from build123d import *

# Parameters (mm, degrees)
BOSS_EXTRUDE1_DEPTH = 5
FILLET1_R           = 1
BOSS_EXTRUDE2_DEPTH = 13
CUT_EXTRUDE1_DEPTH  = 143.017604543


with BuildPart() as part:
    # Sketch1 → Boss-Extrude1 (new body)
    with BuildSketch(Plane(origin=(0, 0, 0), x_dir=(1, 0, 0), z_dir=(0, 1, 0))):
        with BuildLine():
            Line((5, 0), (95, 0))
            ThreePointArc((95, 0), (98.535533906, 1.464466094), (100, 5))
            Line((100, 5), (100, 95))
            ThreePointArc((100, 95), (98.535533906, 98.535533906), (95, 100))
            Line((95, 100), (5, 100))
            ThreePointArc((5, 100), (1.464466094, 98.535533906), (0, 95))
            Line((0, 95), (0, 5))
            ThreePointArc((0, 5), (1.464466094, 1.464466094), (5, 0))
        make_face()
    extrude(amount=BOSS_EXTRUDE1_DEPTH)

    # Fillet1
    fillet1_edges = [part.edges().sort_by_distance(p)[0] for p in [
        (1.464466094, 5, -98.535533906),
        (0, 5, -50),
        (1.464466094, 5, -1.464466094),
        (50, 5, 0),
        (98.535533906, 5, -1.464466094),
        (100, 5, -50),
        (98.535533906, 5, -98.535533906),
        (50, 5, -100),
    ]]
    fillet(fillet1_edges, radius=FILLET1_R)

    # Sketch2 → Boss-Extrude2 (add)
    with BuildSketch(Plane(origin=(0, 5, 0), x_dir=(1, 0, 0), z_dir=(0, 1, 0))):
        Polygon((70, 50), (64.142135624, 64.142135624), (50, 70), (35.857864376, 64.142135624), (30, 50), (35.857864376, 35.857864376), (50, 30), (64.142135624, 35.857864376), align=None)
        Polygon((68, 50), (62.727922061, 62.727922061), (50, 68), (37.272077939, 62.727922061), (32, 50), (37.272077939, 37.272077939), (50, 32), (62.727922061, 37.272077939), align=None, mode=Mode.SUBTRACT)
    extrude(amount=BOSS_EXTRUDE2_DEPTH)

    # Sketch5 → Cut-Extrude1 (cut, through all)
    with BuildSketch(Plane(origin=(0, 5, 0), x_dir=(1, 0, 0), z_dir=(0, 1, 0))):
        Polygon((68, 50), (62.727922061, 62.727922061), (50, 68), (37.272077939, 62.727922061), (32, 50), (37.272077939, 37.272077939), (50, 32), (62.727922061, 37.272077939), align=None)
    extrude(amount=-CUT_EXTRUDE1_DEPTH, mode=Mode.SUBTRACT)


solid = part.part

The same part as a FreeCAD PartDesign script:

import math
import FreeCAD as App
import Part
import Sketcher

V = App.Vector
Q = App.Units.Quantity


def edges_at(feature, points):
    """Names of the edges that pass closest to the given points."""
    edges = feature.Shape.Edges
    near = lambda p: min(range(len(edges)), key=lambda i: edges[i].distToShape(Part.Vertex(*p))[0])
    return sorted({f"Edge{near(p) + 1}" for p in points})

doc = App.newDocument("Part")
body = doc.addObject("PartDesign::Body", "Body")

# Sketch on XZ plane
sketch1 = body.newObject("Sketcher::SketchObject", "Sketch")
sketch1.AttachmentSupport = (doc.getObject("XZ_Plane"), [""])
sketch1.MapMode = "FlatFace"
sketch1.addGeometry(Part.LineSegment(V(5, 0, 0), V(95, 0, 0)), False)
sketch1.addGeometry(Part.ArcOfCircle(Part.Circle(V(95, -5, 0), V(0, 0, 1), 5), math.radians(0), math.radians(90)), False)
sketch1.addGeometry(Part.LineSegment(V(100, -5, 0), V(100, -95, 0)), False)
sketch1.addGeometry(Part.ArcOfCircle(Part.Circle(V(95, -95, 0), V(0, 0, 1), 5), math.radians(-90), math.radians(0)), False)
sketch1.addGeometry(Part.LineSegment(V(95, -100, 0), V(5, -100, 0)), False)
sketch1.addGeometry(Part.ArcOfCircle(Part.Circle(V(5, -95, 0), V(0, 0, 1), 5), math.radians(180), math.radians(270)), False)
sketch1.addGeometry(Part.LineSegment(V(0, -95, 0), V(0, -5, 0)), False)
sketch1.addGeometry(Part.ArcOfCircle(Part.Circle(V(5, -5, 0), V(0, 0, 1), 5), math.radians(90), math.radians(180)), False)
sketch1.addConstraint(Sketcher.Constraint("Tangent", 0, 2, 1, 2))
sketch1.addConstraint(Sketcher.Constraint("Tangent", 1, 1, 2, 1))
sketch1.addConstraint(Sketcher.Constraint("Tangent", 2, 2, 3, 2))
sketch1.addConstraint(Sketcher.Constraint("Tangent", 3, 1, 4, 1))
sketch1.addConstraint(Sketcher.Constraint("Tangent", 4, 2, 5, 2))
sketch1.addConstraint(Sketcher.Constraint("Tangent", 5, 1, 6, 1))
sketch1.addConstraint(Sketcher.Constraint("Tangent", 6, 2, 7, 2))
sketch1.addConstraint(Sketcher.Constraint("Tangent", 7, 1, 0, 1))
sketch1.addConstraint(Sketcher.Constraint("Horizontal", 0))
sketch1.addConstraint(Sketcher.Constraint("Vertical", 2))
sketch1.addConstraint(Sketcher.Constraint("Horizontal", 4))
sketch1.addConstraint(Sketcher.Constraint("Vertical", 6))
sketch1.addConstraint(Sketcher.Constraint("Equal", 1, 3))
sketch1.addConstraint(Sketcher.Constraint("Equal", 3, 5))
sketch1.addConstraint(Sketcher.Constraint("Equal", 5, 7))
sketch1.addConstraint(Sketcher.Constraint("PointOnObject", 0, 2, -1))
sketch1.addConstraint(Sketcher.Constraint("PointOnObject", 5, 1, -2))
sketch1.addConstraint(Sketcher.Constraint("Equal", 4, 2))
sketch1.addConstraint(Sketcher.Constraint("Radius", 1, Q("5 mm")))
sketch1.addConstraint(Sketcher.Constraint("DistanceX", 0, 1, 0, 2, Q("90 mm")))
pad1 = body.newObject("PartDesign::Pad", "Pad")
pad1.Profile = sketch1
pad1.Length = 5
pad1.Reversed = True
doc.recompute()

fillet = body.newObject("PartDesign::Fillet", "Fillet")
fillet.Base = (pad1, edges_at(pad1, [
    (1.464, 5, -98.536),
    (0, 5, -50),
    (1.464, 5, -1.464),
    (50, 5, 0),
    (98.536, 5, -1.464),
    (100, 5, -50),
    (98.536, 5, -98.536),
    (50, 5, -100),
]))
fillet.Radius = 1

# Sketch on XZ plane
sketch2 = body.newObject("Sketcher::SketchObject", "Sketch001")
sketch2.AttachmentSupport = (doc.getObject("XZ_Plane"), [""])
sketch2.MapMode = "FlatFace"
sketch2.AttachmentOffset = App.Placement(V(0, 0, -5), App.Rotation())
sketch2.addGeometry(Part.LineSegment(V(70, -50, 0), V(64.142136, -64.142136, 0)), False)
sketch2.addGeometry(Part.LineSegment(V(64.142136, -64.142136, 0), V(50, -70, 0)), False)
sketch2.addGeometry(Part.LineSegment(V(50, -70, 0), V(35.857864, -64.142136, 0)), False)
sketch2.addGeometry(Part.LineSegment(V(35.857864, -64.142136, 0), V(30, -50, 0)), False)
sketch2.addGeometry(Part.LineSegment(V(30, -50, 0), V(35.857864, -35.857864, 0)), False)
sketch2.addGeometry(Part.LineSegment(V(35.857864, -35.857864, 0), V(50, -30, 0)), False)
sketch2.addGeometry(Part.LineSegment(V(50, -30, 0), V(64.142136, -35.857864, 0)), False)
sketch2.addGeometry(Part.LineSegment(V(64.142136, -35.857864, 0), V(70, -50, 0)), False)
sketch2.addGeometry(Part.LineSegment(V(62.727922, -62.727922, 0), V(68, -50, 0)), False)
sketch2.addGeometry(Part.LineSegment(V(68, -50, 0), V(62.727922, -37.272078, 0)), False)
sketch2.addGeometry(Part.LineSegment(V(62.727922, -37.272078, 0), V(50, -32, 0)), False)
sketch2.addGeometry(Part.LineSegment(V(50, -32, 0), V(37.272078, -37.272078, 0)), False)
sketch2.addGeometry(Part.LineSegment(V(37.272078, -37.272078, 0), V(32, -50, 0)), False)
sketch2.addGeometry(Part.LineSegment(V(32, -50, 0), V(37.272078, -62.727922, 0)), False)
sketch2.addGeometry(Part.LineSegment(V(37.272078, -62.727922, 0), V(50, -68, 0)), False)
sketch2.addGeometry(Part.LineSegment(V(50, -68, 0), V(62.727922, -62.727922, 0)), False)
sketch2.addConstraint(Sketcher.Constraint("Coincident", 0, 2, 1, 1))
sketch2.addConstraint(Sketcher.Constraint("Coincident", 1, 2, 2, 1))
sketch2.addConstraint(Sketcher.Constraint("Coincident", 2, 2, 3, 1))
sketch2.addConstraint(Sketcher.Constraint("Coincident", 3, 2, 4, 1))
sketch2.addConstraint(Sketcher.Constraint("Coincident", 4, 2, 5, 1))
sketch2.addConstraint(Sketcher.Constraint("Coincident", 5, 2, 6, 1))
sketch2.addConstraint(Sketcher.Constraint("Coincident", 6, 2, 7, 1))
sketch2.addConstraint(Sketcher.Constraint("Coincident", 7, 2, 0, 1))
sketch2.addConstraint(Sketcher.Constraint("Coincident", 8, 2, 9, 1))
sketch2.addConstraint(Sketcher.Constraint("Coincident", 9, 2, 10, 1))
sketch2.addConstraint(Sketcher.Constraint("Coincident", 10, 2, 11, 1))
sketch2.addConstraint(Sketcher.Constraint("Coincident", 11, 2, 12, 1))
sketch2.addConstraint(Sketcher.Constraint("Coincident", 12, 2, 13, 1))
sketch2.addConstraint(Sketcher.Constraint("Coincident", 13, 2, 14, 1))
sketch2.addConstraint(Sketcher.Constraint("Coincident", 14, 2, 15, 1))
sketch2.addConstraint(Sketcher.Constraint("Coincident", 15, 2, 8, 1))
sketch2.addConstraint(Sketcher.Constraint("Perpendicular", 0, 2))
sketch2.addConstraint(Sketcher.Constraint("Perpendicular", 1, 3))
sketch2.addConstraint(Sketcher.Constraint("Perpendicular", 2, 4))
sketch2.addConstraint(Sketcher.Constraint("Perpendicular", 3, 5))
sketch2.addConstraint(Sketcher.Constraint("Perpendicular", 4, 6))
sketch2.addConstraint(Sketcher.Constraint("Perpendicular", 5, 7))
sketch2.addConstraint(Sketcher.Constraint("Perpendicular", 6, 8))
sketch2.addConstraint(Sketcher.Constraint("Parallel", 7, 9))
sketch2.addConstraint(Sketcher.Constraint("Perpendicular", 8, 10))
sketch2.addConstraint(Sketcher.Constraint("Perpendicular", 9, 11))
sketch2.addConstraint(Sketcher.Constraint("Perpendicular", 10, 12))
sketch2.addConstraint(Sketcher.Constraint("Perpendicular", 11, 13))
sketch2.addConstraint(Sketcher.Constraint("Perpendicular", 12, 14))
sketch2.addConstraint(Sketcher.Constraint("Perpendicular", 13, 15))
sketch2.addConstraint(Sketcher.Constraint("Horizontal", 0, 2, 2, 2))
sketch2.addConstraint(Sketcher.Constraint("Horizontal", 4, 2, 6, 2))
sketch2.addConstraint(Sketcher.Constraint("Horizontal", 3, 2, 7, 2))
sketch2.addConstraint(Sketcher.Constraint("Horizontal", 7, 2, 8, 2))
sketch2.addConstraint(Sketcher.Constraint("Horizontal", 9, 2, 11, 2))
sketch2.addConstraint(Sketcher.Constraint("Horizontal", 8, 2, 12, 2))
sketch2.addConstraint(Sketcher.Constraint("Horizontal", 13, 2, 15, 2))
sketch2.addConstraint(Sketcher.Constraint("Vertical", 2, 2, 4, 2))
sketch2.addConstraint(Sketcher.Constraint("Vertical", 1, 2, 5, 2))
sketch2.addConstraint(Sketcher.Constraint("Vertical", 5, 2, 10, 2))
sketch2.addConstraint(Sketcher.Constraint("Vertical", 11, 2, 13, 2))
sketch2.addConstraint(Sketcher.Constraint("Equal", 0, 1))
sketch2.addConstraint(Sketcher.Constraint("Equal", 9, 10))
sketch2.addConstraint(Sketcher.Constraint("DistanceX", -1, 1, 1, 2, Q("50 mm")))
sketch2.addConstraint(Sketcher.Constraint("DistanceY", 1, 2, -1, 1, Q("70 mm")))
sketch2.addConstraint(Sketcher.Constraint("DistanceX", -1, 1, 3, 2, Q("30 mm")))
sketch2.addConstraint(Sketcher.Constraint("DistanceX", -1, 1, 8, 2, Q("68 mm")))
sketch2.addConstraint(Sketcher.Constraint("Angle", 0, Q("-112.5 deg")))
pad2 = body.newObject("PartDesign::Pad", "Pad001")
pad2.Profile = sketch2
pad2.Length = 13
pad2.Reversed = True

# Sketch on XZ plane
sketch3 = body.newObject("Sketcher::SketchObject", "Sketch002")
sketch3.AttachmentSupport = (doc.getObject("XZ_Plane"), [""])
sketch3.MapMode = "FlatFace"
sketch3.AttachmentOffset = App.Placement(V(0, 0, -5), App.Rotation())
sketch3.addGeometry(Part.LineSegment(V(68, -50, 0), V(62.727922, -62.727922, 0)), False)
sketch3.addGeometry(Part.LineSegment(V(62.727922, -62.727922, 0), V(50, -68, 0)), False)
sketch3.addGeometry(Part.LineSegment(V(50, -68, 0), V(37.272078, -62.727922, 0)), False)
sketch3.addGeometry(Part.LineSegment(V(37.272078, -62.727922, 0), V(32, -50, 0)), False)
sketch3.addGeometry(Part.LineSegment(V(32, -50, 0), V(37.272078, -37.272078, 0)), False)
sketch3.addGeometry(Part.LineSegment(V(37.272078, -37.272078, 0), V(50, -32, 0)), False)
sketch3.addGeometry(Part.LineSegment(V(50, -32, 0), V(62.727922, -37.272078, 0)), False)
sketch3.addGeometry(Part.LineSegment(V(62.727922, -37.272078, 0), V(68, -50, 0)), False)
sketch3.addConstraint(Sketcher.Constraint("Coincident", 0, 2, 1, 1))
sketch3.addConstraint(Sketcher.Constraint("Coincident", 1, 2, 2, 1))
sketch3.addConstraint(Sketcher.Constraint("Coincident", 2, 2, 3, 1))
sketch3.addConstraint(Sketcher.Constraint("Coincident", 3, 2, 4, 1))
sketch3.addConstraint(Sketcher.Constraint("Coincident", 4, 2, 5, 1))
sketch3.addConstraint(Sketcher.Constraint("Coincident", 5, 2, 6, 1))
sketch3.addConstraint(Sketcher.Constraint("Coincident", 6, 2, 7, 1))
sketch3.addConstraint(Sketcher.Constraint("Coincident", 7, 2, 0, 1))
sketch3.addConstraint(Sketcher.Constraint("Perpendicular", 0, 2))
sketch3.addConstraint(Sketcher.Constraint("Perpendicular", 1, 3))
sketch3.addConstraint(Sketcher.Constraint("Perpendicular", 2, 4))
sketch3.addConstraint(Sketcher.Constraint("Perpendicular", 3, 5))
sketch3.addConstraint(Sketcher.Constraint("Perpendicular", 4, 6))
sketch3.addConstraint(Sketcher.Constraint("Perpendicular", 5, 7))
sketch3.addConstraint(Sketcher.Constraint("Horizontal", 0, 2, 2, 2))
sketch3.addConstraint(Sketcher.Constraint("Horizontal", 4, 2, 6, 2))
sketch3.addConstraint(Sketcher.Constraint("Horizontal", 3, 2, 7, 2))
sketch3.addConstraint(Sketcher.Constraint("Vertical", 2, 2, 4, 2))
sketch3.addConstraint(Sketcher.Constraint("Vertical", 1, 2, 5, 2))
sketch3.addConstraint(Sketcher.Constraint("Equal", 0, 1))
sketch3.addConstraint(Sketcher.Constraint("DistanceX", -1, 1, 1, 2, Q("50 mm")))
sketch3.addConstraint(Sketcher.Constraint("DistanceY", 1, 2, -1, 1, Q("68 mm")))
sketch3.addConstraint(Sketcher.Constraint("DistanceX", -1, 1, 3, 2, Q("32 mm")))
sketch3.addConstraint(Sketcher.Constraint("Angle", 0, Q("-112.5 deg")))
pocket1 = body.newObject("PartDesign::Pocket", "Pocket")
pocket1.Profile = sketch3
pocket1.Type = "ThroughAll"
pocket1.Reversed = True

doc.recompute()
